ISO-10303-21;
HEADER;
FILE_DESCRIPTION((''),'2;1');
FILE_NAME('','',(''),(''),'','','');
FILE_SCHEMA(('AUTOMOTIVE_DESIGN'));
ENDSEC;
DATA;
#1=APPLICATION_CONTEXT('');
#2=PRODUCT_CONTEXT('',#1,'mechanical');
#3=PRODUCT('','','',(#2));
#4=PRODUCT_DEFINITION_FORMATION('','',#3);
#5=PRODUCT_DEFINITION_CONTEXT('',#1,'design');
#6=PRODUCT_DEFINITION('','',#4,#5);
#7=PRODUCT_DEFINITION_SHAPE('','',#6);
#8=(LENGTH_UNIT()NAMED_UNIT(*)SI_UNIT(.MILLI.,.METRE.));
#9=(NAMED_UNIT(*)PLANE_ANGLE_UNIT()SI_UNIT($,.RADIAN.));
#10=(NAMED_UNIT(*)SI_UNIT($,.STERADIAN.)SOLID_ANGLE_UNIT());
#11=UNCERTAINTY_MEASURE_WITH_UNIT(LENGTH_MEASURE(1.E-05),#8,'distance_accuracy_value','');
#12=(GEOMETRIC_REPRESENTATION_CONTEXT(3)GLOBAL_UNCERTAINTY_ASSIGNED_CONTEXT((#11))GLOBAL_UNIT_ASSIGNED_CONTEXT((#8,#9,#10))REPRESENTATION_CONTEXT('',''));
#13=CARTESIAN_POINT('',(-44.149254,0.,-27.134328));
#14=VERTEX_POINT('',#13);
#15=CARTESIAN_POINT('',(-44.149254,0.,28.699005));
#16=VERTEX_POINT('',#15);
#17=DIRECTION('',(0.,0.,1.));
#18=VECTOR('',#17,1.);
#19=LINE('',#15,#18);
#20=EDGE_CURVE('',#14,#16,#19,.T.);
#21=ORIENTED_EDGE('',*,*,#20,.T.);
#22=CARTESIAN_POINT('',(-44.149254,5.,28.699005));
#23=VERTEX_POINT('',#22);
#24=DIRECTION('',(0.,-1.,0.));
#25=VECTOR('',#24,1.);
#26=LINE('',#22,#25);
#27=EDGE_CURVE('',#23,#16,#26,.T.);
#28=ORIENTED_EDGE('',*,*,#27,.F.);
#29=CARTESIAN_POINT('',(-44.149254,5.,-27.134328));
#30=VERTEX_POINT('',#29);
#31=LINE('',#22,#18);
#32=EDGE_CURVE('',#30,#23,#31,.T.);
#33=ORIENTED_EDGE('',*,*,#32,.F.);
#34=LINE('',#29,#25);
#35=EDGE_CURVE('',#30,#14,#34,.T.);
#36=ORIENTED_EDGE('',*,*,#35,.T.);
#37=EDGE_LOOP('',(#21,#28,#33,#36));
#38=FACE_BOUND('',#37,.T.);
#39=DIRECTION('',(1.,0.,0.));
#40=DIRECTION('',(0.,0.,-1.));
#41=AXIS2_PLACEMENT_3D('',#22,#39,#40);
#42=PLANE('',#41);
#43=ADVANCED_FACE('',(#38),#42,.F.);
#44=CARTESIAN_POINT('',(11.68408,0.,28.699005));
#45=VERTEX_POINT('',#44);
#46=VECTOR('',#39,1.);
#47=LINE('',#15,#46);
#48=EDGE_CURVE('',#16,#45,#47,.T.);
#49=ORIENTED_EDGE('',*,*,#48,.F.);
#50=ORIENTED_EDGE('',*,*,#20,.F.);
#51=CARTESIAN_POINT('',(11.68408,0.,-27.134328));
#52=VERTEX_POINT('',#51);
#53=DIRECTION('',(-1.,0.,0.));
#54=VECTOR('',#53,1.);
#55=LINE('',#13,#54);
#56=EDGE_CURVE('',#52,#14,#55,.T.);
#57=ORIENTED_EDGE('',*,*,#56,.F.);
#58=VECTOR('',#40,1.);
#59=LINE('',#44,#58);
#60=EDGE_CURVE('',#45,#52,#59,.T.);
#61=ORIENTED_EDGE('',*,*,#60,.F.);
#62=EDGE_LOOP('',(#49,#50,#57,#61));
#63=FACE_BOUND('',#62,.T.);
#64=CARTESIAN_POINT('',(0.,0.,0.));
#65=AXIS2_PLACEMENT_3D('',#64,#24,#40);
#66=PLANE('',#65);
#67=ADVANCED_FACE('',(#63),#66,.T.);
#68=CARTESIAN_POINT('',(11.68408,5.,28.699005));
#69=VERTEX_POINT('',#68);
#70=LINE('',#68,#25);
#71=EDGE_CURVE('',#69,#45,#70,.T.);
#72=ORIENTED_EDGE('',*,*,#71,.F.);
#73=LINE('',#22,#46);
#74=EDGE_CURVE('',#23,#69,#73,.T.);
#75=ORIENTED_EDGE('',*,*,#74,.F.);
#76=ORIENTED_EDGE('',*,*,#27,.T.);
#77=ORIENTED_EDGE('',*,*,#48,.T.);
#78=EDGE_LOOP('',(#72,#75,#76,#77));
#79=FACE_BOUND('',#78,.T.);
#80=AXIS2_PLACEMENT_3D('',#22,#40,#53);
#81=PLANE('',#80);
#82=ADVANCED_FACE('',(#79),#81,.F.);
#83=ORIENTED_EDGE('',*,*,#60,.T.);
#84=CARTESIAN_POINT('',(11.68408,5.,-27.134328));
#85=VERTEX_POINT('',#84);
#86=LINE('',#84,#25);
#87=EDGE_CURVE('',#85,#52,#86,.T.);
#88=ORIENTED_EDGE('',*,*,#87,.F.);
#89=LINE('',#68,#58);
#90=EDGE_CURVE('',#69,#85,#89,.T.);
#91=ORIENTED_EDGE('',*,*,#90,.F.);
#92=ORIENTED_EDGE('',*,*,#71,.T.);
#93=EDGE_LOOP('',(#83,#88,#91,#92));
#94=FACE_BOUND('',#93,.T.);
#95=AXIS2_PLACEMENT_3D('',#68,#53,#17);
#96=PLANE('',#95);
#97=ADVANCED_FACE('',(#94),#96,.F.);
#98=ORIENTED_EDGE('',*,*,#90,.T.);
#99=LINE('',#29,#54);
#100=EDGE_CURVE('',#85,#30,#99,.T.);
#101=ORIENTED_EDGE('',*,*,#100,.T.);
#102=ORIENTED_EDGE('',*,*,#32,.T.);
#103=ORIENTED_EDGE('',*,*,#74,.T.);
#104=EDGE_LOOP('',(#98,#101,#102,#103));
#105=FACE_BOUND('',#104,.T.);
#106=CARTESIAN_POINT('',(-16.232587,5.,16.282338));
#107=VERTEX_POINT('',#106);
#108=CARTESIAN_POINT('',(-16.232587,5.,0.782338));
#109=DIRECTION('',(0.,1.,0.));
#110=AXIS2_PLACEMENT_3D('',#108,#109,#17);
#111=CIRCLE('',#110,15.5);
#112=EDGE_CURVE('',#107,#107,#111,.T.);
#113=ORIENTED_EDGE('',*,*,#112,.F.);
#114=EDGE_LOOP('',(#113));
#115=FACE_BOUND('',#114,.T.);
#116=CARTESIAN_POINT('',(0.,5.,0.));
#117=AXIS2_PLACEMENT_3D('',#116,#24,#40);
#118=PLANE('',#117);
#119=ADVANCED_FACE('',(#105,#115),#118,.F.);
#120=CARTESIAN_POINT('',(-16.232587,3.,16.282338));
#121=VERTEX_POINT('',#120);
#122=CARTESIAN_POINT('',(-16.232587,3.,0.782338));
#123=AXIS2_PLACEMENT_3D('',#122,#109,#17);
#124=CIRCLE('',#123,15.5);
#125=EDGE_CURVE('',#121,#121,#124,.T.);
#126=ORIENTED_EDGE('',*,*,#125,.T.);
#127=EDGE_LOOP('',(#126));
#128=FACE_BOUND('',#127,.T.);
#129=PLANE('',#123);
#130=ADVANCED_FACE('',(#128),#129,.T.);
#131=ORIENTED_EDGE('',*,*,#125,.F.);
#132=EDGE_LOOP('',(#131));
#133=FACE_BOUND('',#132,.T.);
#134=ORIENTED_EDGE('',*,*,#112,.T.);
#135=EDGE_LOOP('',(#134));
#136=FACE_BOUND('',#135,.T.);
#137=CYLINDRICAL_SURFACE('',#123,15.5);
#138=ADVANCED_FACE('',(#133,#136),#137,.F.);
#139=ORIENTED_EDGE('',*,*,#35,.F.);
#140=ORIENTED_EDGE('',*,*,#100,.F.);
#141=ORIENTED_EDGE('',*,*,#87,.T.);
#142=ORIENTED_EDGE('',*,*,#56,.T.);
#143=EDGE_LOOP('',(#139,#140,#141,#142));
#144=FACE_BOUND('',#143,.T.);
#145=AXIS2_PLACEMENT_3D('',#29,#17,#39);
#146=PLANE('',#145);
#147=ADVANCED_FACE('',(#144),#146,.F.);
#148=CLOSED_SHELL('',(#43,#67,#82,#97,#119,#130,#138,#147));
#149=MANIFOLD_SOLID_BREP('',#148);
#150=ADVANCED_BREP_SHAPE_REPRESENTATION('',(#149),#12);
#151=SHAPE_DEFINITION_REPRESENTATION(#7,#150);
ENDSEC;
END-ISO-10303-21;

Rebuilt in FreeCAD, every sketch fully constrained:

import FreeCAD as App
import Part
import Sketcher

V = App.Vector
Q = App.Units.Quantity

doc = App.newDocument("Part")
body = doc.addObject("PartDesign::Body", "Body")

sketch1 = body.newObject("Sketcher::SketchObject", "Sketch")
sketch1.AttachmentSupport = (doc.getObject("XZ_Plane"), [""])
sketch1.MapMode = "FlatFace"
sketch1.addGeometry([
    Part.LineSegment(V(-44, -27, 0), V(-44, 29, 0)),
    Part.LineSegment(V(-44, 29, 0), V(12, 29, 0)),
    Part.LineSegment(V(12, 29, 0), V(12, -27, 0)),
    Part.LineSegment(V(12, -27, 0), V(-44, -27, 0)),
], False)
sketch1.addConstraint([
    Sketcher.Constraint("Coincident", 0, 2, 1, 1),
    Sketcher.Constraint("Coincident", 1, 2, 2, 1),
    Sketcher.Constraint("Coincident", 2, 2, 3, 1),
    Sketcher.Constraint("Coincident", 3, 2, 0, 1),
    Sketcher.Constraint("Vertical", 0),
    Sketcher.Constraint("Horizontal", 1),
    Sketcher.Constraint("Vertical", 2),
    Sketcher.Constraint("Horizontal", 3),
    Sketcher.Constraint("Equal", 3, 0),
    Sketcher.Constraint("DistanceX", 1, 1, 1, 2, Q("55.833333 mm")),
    Sketcher.Constraint("DistanceX", -1, 1, 1, 2, Q("11.68408 mm")),
    Sketcher.Constraint("DistanceY", 2, 2, -1, 1, Q("27.134328 mm")),
])
pad1 = body.newObject("PartDesign::Pad", "Pad")
pad1.Profile = sketch1
pad1.Length = 5
pad1.Reversed = True

sketch2 = body.newObject("Sketcher::SketchObject", "Sketch001")
sketch2.AttachmentSupport = (doc.getObject("XZ_Plane"), [""])
sketch2.MapMode = "FlatFace"
sketch2.AttachmentOffset = App.Placement(V(0, 0, -5), App.Rotation())
sketch2.addGeometry(Part.Circle(V(-16, 1, 0), V(0, 0, 1), 16), False)
sketch2.addConstraint([
    Sketcher.Constraint("Diameter", 0, Q("31 mm")),
    Sketcher.Constraint("DistanceY", -1, 1, 0, 3, Q("0.782338 mm")),
    Sketcher.Constraint("DistanceX", 0, 3, -1, 1, Q("16.232587 mm")),
])
pocket1 = body.newObject("PartDesign::Pocket", "Pocket")
pocket1.Profile = sketch2
pocket1.Length = 2
pocket1.Reversed = True

doc.recompute()
